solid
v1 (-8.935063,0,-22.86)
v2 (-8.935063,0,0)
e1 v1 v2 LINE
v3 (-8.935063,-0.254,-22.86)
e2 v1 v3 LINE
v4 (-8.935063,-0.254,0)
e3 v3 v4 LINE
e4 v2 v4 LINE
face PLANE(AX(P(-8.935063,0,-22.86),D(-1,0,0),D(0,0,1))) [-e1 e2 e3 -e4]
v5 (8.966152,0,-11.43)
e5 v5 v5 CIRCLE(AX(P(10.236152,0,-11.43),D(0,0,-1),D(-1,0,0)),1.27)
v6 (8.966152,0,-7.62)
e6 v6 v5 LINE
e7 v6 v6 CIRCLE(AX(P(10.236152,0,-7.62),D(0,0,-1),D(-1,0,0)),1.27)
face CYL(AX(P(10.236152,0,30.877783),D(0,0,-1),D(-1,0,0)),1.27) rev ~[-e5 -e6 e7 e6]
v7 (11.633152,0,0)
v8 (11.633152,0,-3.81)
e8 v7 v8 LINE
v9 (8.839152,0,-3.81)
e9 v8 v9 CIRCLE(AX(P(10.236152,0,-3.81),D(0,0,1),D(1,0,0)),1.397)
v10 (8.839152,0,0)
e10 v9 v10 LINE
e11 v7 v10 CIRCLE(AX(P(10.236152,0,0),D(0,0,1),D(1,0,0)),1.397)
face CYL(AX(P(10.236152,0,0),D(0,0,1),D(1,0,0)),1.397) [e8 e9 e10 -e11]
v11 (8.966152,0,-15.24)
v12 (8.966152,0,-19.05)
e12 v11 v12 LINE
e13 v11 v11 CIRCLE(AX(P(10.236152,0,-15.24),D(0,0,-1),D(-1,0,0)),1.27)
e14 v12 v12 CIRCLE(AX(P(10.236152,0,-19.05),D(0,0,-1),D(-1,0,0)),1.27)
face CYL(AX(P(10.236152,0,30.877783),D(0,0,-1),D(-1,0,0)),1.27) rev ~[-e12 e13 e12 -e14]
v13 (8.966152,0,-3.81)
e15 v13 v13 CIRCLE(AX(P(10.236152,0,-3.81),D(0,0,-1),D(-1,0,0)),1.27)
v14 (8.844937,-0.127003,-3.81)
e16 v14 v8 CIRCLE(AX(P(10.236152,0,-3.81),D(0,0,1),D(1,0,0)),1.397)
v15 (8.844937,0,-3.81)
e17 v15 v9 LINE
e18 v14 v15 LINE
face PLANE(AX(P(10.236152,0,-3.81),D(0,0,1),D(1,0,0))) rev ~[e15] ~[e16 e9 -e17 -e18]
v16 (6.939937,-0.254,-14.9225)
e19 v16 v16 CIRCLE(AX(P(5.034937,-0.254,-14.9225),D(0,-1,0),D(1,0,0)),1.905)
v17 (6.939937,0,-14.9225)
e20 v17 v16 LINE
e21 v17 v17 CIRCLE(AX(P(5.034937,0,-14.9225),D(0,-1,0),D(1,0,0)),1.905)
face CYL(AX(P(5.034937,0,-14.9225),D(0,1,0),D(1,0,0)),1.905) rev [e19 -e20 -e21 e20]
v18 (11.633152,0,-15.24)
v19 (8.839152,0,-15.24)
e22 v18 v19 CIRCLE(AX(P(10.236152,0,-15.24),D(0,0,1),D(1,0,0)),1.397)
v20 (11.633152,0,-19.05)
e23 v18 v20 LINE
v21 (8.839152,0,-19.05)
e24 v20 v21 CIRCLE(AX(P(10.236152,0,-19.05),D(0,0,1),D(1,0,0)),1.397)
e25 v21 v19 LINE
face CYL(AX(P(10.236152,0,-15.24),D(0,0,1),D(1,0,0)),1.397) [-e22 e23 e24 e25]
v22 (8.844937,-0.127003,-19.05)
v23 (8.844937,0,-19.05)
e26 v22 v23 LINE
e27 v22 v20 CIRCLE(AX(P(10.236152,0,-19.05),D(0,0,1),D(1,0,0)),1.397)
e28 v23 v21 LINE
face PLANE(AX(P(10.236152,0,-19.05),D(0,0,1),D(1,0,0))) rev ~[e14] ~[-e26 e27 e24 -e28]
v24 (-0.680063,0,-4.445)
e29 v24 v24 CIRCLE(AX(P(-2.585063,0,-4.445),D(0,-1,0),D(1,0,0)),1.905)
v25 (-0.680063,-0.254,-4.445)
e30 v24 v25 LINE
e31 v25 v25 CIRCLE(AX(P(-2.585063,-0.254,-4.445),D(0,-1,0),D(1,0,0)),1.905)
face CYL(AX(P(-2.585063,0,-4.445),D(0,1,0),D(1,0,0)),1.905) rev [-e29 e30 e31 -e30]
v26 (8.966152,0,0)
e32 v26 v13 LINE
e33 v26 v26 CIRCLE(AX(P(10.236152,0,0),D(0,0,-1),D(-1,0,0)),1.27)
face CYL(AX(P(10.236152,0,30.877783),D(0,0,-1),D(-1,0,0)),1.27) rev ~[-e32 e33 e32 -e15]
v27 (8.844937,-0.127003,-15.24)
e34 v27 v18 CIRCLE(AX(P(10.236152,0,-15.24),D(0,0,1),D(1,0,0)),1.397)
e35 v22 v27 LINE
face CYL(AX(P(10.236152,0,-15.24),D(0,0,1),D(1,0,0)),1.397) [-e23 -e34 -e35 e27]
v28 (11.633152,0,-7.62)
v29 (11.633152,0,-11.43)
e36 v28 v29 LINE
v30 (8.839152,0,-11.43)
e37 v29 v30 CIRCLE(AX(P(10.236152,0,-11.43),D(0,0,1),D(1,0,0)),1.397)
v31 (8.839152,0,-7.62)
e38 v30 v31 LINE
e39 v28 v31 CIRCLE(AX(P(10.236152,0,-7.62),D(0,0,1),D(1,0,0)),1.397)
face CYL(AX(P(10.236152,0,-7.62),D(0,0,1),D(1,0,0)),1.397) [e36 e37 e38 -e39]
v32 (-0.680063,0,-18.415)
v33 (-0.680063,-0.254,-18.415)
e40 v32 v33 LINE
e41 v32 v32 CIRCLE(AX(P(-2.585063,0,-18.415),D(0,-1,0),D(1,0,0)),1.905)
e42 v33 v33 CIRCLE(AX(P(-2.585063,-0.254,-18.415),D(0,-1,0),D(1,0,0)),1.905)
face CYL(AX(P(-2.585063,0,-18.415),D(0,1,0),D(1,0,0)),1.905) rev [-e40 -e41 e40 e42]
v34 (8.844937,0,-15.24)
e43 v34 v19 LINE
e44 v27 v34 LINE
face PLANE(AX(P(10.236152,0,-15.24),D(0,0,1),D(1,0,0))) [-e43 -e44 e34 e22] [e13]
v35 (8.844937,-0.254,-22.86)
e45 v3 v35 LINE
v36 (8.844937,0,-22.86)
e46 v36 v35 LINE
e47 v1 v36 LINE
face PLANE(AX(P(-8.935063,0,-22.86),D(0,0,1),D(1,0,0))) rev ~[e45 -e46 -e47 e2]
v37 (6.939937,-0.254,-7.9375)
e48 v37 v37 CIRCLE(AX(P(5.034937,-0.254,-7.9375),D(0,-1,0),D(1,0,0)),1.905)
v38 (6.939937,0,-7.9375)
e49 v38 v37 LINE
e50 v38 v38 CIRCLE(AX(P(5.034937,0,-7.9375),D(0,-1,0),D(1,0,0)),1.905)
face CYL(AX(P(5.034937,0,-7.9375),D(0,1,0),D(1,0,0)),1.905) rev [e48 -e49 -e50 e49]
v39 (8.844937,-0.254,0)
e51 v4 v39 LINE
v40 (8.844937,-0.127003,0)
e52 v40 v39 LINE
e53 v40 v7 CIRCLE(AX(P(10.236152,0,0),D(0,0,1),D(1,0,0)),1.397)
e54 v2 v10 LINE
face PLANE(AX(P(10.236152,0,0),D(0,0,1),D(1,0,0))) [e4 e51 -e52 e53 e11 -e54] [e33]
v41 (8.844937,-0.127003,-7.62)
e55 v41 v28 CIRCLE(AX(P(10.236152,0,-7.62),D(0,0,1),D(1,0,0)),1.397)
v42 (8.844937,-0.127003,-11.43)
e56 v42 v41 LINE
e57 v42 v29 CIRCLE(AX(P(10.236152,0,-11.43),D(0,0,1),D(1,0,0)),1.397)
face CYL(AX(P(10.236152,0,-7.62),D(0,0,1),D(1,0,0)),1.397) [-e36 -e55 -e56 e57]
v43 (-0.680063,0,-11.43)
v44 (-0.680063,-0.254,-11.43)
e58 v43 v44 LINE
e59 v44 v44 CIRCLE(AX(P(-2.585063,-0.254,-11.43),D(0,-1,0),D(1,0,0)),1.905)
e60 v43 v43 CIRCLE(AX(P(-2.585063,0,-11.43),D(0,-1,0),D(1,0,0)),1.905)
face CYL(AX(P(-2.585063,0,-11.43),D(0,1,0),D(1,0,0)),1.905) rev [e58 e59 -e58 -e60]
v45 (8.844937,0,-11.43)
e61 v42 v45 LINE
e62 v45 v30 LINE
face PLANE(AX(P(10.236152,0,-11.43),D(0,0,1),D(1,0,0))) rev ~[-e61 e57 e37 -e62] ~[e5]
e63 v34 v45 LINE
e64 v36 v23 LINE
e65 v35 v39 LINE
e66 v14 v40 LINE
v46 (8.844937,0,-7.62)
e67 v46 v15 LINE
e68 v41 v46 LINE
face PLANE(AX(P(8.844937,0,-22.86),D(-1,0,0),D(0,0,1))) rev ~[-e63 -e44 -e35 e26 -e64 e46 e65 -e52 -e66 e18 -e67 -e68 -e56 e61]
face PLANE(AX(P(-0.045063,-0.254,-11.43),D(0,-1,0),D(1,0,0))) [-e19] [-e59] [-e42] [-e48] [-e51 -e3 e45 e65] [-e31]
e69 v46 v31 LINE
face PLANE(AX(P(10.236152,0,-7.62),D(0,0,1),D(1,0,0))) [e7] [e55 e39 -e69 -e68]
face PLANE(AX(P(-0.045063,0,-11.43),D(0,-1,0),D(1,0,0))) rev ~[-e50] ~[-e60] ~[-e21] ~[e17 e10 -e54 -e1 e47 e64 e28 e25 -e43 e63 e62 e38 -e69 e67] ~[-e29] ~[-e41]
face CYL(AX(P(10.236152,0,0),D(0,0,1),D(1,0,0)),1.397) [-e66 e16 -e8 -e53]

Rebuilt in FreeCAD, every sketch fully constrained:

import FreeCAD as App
import Part
import Sketcher

V = App.Vector
Q = App.Units.Quantity


def add_polygon(sketch, points):
    """Adds a closed chain of lines whose ends are joined by coincident constraints."""
    first, n = sketch.GeometryCount, len(points)
    for a, b in zip(points, points[1:] + points[:1]):
        sketch.addGeometry(Part.LineSegment(App.Vector(*a, 0), App.Vector(*b, 0)), False)
    for i in range(n):
        sketch.addConstraint(Sketcher.Constraint("Coincident", first + i, 2, first + (i + 1) % n, 1))

doc = App.newDocument("Part")
params = doc.addObject("Spreadsheet::Sheet", "Params")
for row, (alias, value) in enumerate([
    ("sketch1_diameter", "0.15 in"),
    ("sketch1_width", "0.7 in"),
    ("sketch1_height", "0.9 in"),
    ("pad1_length", "0.01 in"),
    ("sketch2_diameter", "0.11 in"),
    ("pad2_length", "0.15 in"),
    ("sketch3_diameter", "0.11 in"),
    ("pad3_length", "0.15 in"),
    ("sketch4_diameter", "0.11 in"),
    ("pad4_length", "0.15 in"),
    ("sketch5_diameter", "0.1 in"),
    ("hole_diameter", "0.1 in"),
], start=1):
    params.set(f"A{row}", alias)
    params.set(f"B{row}", "=" + value)
    params.setAlias(f"B{row}", alias)

body = doc.addObject("PartDesign::Body", "Body")

# Sketch on XZ plane
sketch1 = body.newObject("Sketcher::SketchObject", "Sketch")
sketch1.AttachmentSupport = (doc.getObject("XZ_Plane"), [""])
sketch1.MapMode = "FlatFace"
add_polygon(sketch1, [(-8.9, 0), (-8.9, -22.9), (8.8, -22.9), (8.8, 0)])  # lines 0-3
sketch1.addGeometry(Part.Circle(V(-2.6, -18.4, 0), V(0, 0, 1), 1.9), False)  # 4
sketch1.addGeometry(Part.Circle(V(5, -14.9, 0), V(0, 0, 1), 1.9), False)  # 5
sketch1.addGeometry(Part.Circle(V(-2.6, -11.4, 0), V(0, 0, 1), 1.9), False)  # 6
sketch1.addGeometry(Part.Circle(V(-2.6, -4.4, 0), V(0, 0, 1), 1.9), False)  # 7
sketch1.addGeometry(Part.Circle(V(5, -7.9, 0), V(0, 0, 1), 1.9), False)  # 8
sketch1.addConstraint([
    Sketcher.Constraint("Vertical", 0),
    Sketcher.Constraint("Horizontal", 1),
    Sketcher.Constraint("Vertical", 2),
    Sketcher.Constraint("Horizontal", 3),
    Sketcher.Constraint("Equal", 4, 5),
    Sketcher.Constraint("Equal", 5, 6),
    Sketcher.Constraint("Equal", 6, 7),
    Sketcher.Constraint("Equal", 7, 8),
    Sketcher.Constraint("PointOnObject", 2, 2, -1),
    Sketcher.Constraint("Vertical", 4, 3, 6, 3),
    Sketcher.Constraint("Vertical", 6, 3, 7, 3),
    Sketcher.Constraint("Vertical", 5, 3, 8, 3),
    Sketcher.Constraint("Diameter", 4, Q("0.15 in")),
    Sketcher.Constraint("DistanceX", 1, 1, 1, 2, Q("0.7 in")),
    Sketcher.Constraint("DistanceY", 0, 2, 0, 1, Q("0.9 in")),
    Sketcher.Constraint("DistanceX", 4, 3, 5, 3, Q("0.3 in")),
    Sketcher.Constraint("DistanceY", 6, 3, -1, 1, Q("0.45 in")),
    Sketcher.Constraint("DistanceY", 4, 3, 7, 3, Q("0.55 in")),
    Sketcher.Constraint("DistanceX", 0, 2, 4, 3, Q("0.25 in")),
    Sketcher.Constraint("DistanceY", 4, 3, -1, 1, Q("0.725 in")),
    Sketcher.Constraint("DistanceY", 8, 3, -1, 1, Q("0.3125 in")),
    Sketcher.Constraint("DistanceY", 5, 3, 8, 3, Q("0.275 in")),
    Sketcher.Constraint("DistanceX", 4, 3, -1, 1, Q("2.585063 mm")),
])
sketch1.setExpression("Constraints[16]", "Params.sketch1_diameter")
sketch1.setExpression("Constraints[17]", "Params.sketch1_width")
sketch1.setExpression("Constraints[18]", "Params.sketch1_height")
pad1 = body.newObject("PartDesign::Pad", "Pad")
pad1.Profile = sketch1
pad1.setExpression("Length", "Params.pad1_length")

# Sketch on XY plane
sketch2 = body.newObject("Sketcher::SketchObject", "Sketch001")
sketch2.AttachmentSupport = (doc.getObject("XY_Plane"), [""])
sketch2.MapMode = "FlatFace"
sketch2.addGeometry(Part.Circle(V(10.2, 0, 0), V(0, 0, 1), 1.4), False)
sketch2.addConstraint([
    Sketcher.Constraint("PointOnObject", 0, 3, -1),
    Sketcher.Constraint("Diameter", 0, Q("0.11 in")),
    Sketcher.Constraint("DistanceX", -1, 1, 0, 3, Q("10.236152 mm")),
])
sketch2.setExpression("Constraints[1]", "Params.sketch2_diameter")
pad2 = body.newObject("PartDesign::Pad", "Pad001")
pad2.Profile = sketch2
pad2.setExpression("Length", "Params.pad2_length")
pad2.Reversed = True

# Sketch on XY plane
sketch3 = body.newObject("Sketcher::SketchObject", "Sketch002")
sketch3.AttachmentSupport = (doc.getObject("XY_Plane"), [""])
sketch3.MapMode = "FlatFace"
sketch3.AttachmentOffset = App.Placement(V(0, 0, -0.3 * 25.4), App.Rotation())
sketch3.addGeometry(Part.Circle(V(10.2, 0, 0), V(0, 0, 1), 1.4), False)
sketch3.addConstraint([
    Sketcher.Constraint("PointOnObject", 0, 3, -1),
    Sketcher.Constraint("Diameter", 0, Q("0.11 in")),
    Sketcher.Constraint("DistanceX", -1, 1, 0, 3, Q("10.236152 mm")),
])
sketch3.setExpression("Constraints[1]", "Params.sketch3_diameter")
pad3 = body.newObject("PartDesign::Pad", "Pad002")
pad3.Profile = sketch3
pad3.setExpression("Length", "Params.pad3_length")
pad3.Reversed = True

# Sketch on XY plane
sketch4 = body.newObject("Sketcher::SketchObject", "Sketch003")
sketch4.AttachmentSupport = (doc.getObject("XY_Plane"), [""])
sketch4.MapMode = "FlatFace"
sketch4.AttachmentOffset = App.Placement(V(0, 0, -0.6 * 25.4), App.Rotation())
sketch4.addGeometry(Part.Circle(V(10.2, 0, 0), V(0, 0, 1), 1.4), False)
sketch4.addConstraint([
    Sketcher.Constraint("PointOnObject", 0, 3, -1),
    Sketcher.Constraint("Diameter", 0, Q("0.11 in")),
    Sketcher.Constraint("DistanceX", -1, 1, 0, 3, Q("10.236152 mm")),
])
sketch4.setExpression("Constraints[1]", "Params.sketch4_diameter")
pad4 = body.newObject("PartDesign::Pad", "Pad003")
pad4.Profile = sketch4
pad4.setExpression("Length", "Params.pad4_length")
pad4.Reversed = True

# Sketch on XY plane
sketch5 = body.newObject("Sketcher::SketchObject", "Sketch004")
sketch5.AttachmentSupport = (doc.getObject("XY_Plane"), [""])
sketch5.MapMode = "FlatFace"
sketch5.addGeometry(Part.Circle(V(10.2, 0, 0), V(0, 0, 1), 1.3), False)
sketch5.addConstraint([
    Sketcher.Constraint("PointOnObject", 0, 3, -1),
    Sketcher.Constraint("Diameter", 0, Q("0.1 in")),
    Sketcher.Constraint("DistanceX", -1, 1, 0, 3, Q("10.236152 mm")),
])
sketch5.setExpression("Constraints[1]", "Params.sketch5_diameter")
doc.recompute()
hole = body.newObject("PartDesign::Hole", "Hole")
hole.Profile = sketch5
hole.ThreadType = "None"
hole.setExpression("Diameter", "Params.hole_diameter")
hole.DepthType = "ThroughAll"

doc.recompute()
